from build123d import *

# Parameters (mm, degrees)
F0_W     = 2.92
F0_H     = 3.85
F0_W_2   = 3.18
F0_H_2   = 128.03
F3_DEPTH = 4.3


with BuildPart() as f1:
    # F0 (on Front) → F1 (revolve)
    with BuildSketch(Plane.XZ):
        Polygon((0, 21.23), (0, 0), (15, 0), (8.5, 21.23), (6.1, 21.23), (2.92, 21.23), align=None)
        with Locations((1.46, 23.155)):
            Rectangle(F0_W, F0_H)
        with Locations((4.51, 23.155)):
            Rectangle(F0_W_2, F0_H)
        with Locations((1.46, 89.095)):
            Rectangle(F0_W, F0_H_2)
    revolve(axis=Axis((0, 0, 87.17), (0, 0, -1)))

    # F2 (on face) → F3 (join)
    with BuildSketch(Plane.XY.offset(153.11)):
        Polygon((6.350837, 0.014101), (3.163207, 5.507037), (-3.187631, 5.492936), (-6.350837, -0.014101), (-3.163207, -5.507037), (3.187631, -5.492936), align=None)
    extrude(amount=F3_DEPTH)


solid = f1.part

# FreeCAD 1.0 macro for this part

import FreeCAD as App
import Part
import Sketcher
from FreeCAD import Vector
Q = App.Units.Quantity


def add_polygon(sketch, points):
    """Adds a closed chain of lines whose ends are joined by coincident constraints."""
    first, n = sketch.GeometryCount, len(points)
    for a, b in zip(points, points[1:] + points[:1]):
        sketch.addGeometry(Part.LineSegment(App.Vector(*a, 0), App.Vector(*b, 0)), False)
    for i in range(n):
        sketch.addConstraint(Sketcher.Constraint("Coincident", first + i, 2, first + (i + 1) % n, 1))

doc = App.newDocument("Part")
body = doc.addObject("PartDesign::Body", "Body")

# Sketch on XZ plane
sketch1 = body.newObject("Sketcher::SketchObject", "Sketch")
sketch1.AttachmentSupport = (doc.getObject("XZ_Plane"), [""])
sketch1.MapMode = "FlatFace"
add_polygon(sketch1, [(0, 0), (15, 0), (8.5, 21.2), (6.1, 21.2), (6.1, 25.1), (2.9, 25.1), (2.9, 153.1), (0, 153.1)])  # lines 0-7
sketch1.addConstraint([
    Sketcher.Constraint("Horizontal", 0),
    Sketcher.Constraint("Horizontal", 2),
    Sketcher.Constraint("Vertical", 3),
    Sketcher.Constraint("Horizontal", 4),
    Sketcher.Constraint("Vertical", 5),
    Sketcher.Constraint("Horizontal", 6),
    Sketcher.Constraint("Vertical", 7),
    Sketcher.Constraint("Coincident", 7, 2, -1, 1),
    Sketcher.Constraint("DistanceX", 0, 1, 0, 2, Q("15 mm")),
    Sketcher.Constraint("DistanceX", 2, 2, 2, 1, Q("2.4 mm")),
    Sketcher.Constraint("DistanceX", 4, 2, 4, 1, Q("3.18 mm")),
    Sketcher.Constraint("DistanceX", 6, 2, 6, 1, Q("2.92 mm")),
    Sketcher.Constraint("DistanceY", 3, 1, 3, 2, Q("3.85 mm")),
    Sketcher.Constraint("DistanceY", 5, 1, 5, 2, Q("128.03 mm")),
    Sketcher.Constraint("DistanceY", 7, 2, 7, 1, Q("153.11 mm")),
])
revolution = body.newObject("PartDesign::Revolution", "Revolution")
revolution.Profile = sketch1
revolution.ReferenceAxis = (sketch1, ["V_Axis"])
revolution.Angle = 360

# Sketch on XY plane
sketch2 = body.newObject("Sketcher::SketchObject", "Sketch001")
sketch2.AttachmentSupport = (doc.getObject("XY_Plane"), [""])
sketch2.MapMode = "FlatFace"
sketch2.AttachmentOffset = App.Placement(Vector(0, 0, 153.11), App.Rotation())
add_polygon(sketch2, [(6, 0), (3, 6), (-3, 5), (-6, 0), (-3, -6), (3, -5)])  # lines 0-5
sketch2.addConstraint([
    Sketcher.Constraint("Symmetric", 0, 2, 3, 2, -1, 1),
    Sketcher.Constraint("Symmetric", 1, 2, 4, 2, -1, 1),
    Sketcher.Constraint("Symmetric", 2, 2, 5, 2, -1, 1),
    Sketcher.Constraint("Equal", 0, 1),
    Sketcher.Constraint("Equal", 1, 2),
    Sketcher.Constraint("DistanceY", 2, 2, -1, 1, Q("0.014101 mm")),
    Sketcher.Constraint("DistanceY", 1, 2, 0, 2, Q("0.014101 mm")),
    Sketcher.Constraint("DistanceX", 1, 2, -1, 1, Q("3.187631 mm")),
    Sketcher.Constraint("DistanceY", 2, 2, 0, 2, Q("5.521138 mm")),
])
pad1 = body.newObject("PartDesign::Pad", "Pad")
pad1.Profile = sketch2
pad1.Length = 4.3

doc.recompute()
